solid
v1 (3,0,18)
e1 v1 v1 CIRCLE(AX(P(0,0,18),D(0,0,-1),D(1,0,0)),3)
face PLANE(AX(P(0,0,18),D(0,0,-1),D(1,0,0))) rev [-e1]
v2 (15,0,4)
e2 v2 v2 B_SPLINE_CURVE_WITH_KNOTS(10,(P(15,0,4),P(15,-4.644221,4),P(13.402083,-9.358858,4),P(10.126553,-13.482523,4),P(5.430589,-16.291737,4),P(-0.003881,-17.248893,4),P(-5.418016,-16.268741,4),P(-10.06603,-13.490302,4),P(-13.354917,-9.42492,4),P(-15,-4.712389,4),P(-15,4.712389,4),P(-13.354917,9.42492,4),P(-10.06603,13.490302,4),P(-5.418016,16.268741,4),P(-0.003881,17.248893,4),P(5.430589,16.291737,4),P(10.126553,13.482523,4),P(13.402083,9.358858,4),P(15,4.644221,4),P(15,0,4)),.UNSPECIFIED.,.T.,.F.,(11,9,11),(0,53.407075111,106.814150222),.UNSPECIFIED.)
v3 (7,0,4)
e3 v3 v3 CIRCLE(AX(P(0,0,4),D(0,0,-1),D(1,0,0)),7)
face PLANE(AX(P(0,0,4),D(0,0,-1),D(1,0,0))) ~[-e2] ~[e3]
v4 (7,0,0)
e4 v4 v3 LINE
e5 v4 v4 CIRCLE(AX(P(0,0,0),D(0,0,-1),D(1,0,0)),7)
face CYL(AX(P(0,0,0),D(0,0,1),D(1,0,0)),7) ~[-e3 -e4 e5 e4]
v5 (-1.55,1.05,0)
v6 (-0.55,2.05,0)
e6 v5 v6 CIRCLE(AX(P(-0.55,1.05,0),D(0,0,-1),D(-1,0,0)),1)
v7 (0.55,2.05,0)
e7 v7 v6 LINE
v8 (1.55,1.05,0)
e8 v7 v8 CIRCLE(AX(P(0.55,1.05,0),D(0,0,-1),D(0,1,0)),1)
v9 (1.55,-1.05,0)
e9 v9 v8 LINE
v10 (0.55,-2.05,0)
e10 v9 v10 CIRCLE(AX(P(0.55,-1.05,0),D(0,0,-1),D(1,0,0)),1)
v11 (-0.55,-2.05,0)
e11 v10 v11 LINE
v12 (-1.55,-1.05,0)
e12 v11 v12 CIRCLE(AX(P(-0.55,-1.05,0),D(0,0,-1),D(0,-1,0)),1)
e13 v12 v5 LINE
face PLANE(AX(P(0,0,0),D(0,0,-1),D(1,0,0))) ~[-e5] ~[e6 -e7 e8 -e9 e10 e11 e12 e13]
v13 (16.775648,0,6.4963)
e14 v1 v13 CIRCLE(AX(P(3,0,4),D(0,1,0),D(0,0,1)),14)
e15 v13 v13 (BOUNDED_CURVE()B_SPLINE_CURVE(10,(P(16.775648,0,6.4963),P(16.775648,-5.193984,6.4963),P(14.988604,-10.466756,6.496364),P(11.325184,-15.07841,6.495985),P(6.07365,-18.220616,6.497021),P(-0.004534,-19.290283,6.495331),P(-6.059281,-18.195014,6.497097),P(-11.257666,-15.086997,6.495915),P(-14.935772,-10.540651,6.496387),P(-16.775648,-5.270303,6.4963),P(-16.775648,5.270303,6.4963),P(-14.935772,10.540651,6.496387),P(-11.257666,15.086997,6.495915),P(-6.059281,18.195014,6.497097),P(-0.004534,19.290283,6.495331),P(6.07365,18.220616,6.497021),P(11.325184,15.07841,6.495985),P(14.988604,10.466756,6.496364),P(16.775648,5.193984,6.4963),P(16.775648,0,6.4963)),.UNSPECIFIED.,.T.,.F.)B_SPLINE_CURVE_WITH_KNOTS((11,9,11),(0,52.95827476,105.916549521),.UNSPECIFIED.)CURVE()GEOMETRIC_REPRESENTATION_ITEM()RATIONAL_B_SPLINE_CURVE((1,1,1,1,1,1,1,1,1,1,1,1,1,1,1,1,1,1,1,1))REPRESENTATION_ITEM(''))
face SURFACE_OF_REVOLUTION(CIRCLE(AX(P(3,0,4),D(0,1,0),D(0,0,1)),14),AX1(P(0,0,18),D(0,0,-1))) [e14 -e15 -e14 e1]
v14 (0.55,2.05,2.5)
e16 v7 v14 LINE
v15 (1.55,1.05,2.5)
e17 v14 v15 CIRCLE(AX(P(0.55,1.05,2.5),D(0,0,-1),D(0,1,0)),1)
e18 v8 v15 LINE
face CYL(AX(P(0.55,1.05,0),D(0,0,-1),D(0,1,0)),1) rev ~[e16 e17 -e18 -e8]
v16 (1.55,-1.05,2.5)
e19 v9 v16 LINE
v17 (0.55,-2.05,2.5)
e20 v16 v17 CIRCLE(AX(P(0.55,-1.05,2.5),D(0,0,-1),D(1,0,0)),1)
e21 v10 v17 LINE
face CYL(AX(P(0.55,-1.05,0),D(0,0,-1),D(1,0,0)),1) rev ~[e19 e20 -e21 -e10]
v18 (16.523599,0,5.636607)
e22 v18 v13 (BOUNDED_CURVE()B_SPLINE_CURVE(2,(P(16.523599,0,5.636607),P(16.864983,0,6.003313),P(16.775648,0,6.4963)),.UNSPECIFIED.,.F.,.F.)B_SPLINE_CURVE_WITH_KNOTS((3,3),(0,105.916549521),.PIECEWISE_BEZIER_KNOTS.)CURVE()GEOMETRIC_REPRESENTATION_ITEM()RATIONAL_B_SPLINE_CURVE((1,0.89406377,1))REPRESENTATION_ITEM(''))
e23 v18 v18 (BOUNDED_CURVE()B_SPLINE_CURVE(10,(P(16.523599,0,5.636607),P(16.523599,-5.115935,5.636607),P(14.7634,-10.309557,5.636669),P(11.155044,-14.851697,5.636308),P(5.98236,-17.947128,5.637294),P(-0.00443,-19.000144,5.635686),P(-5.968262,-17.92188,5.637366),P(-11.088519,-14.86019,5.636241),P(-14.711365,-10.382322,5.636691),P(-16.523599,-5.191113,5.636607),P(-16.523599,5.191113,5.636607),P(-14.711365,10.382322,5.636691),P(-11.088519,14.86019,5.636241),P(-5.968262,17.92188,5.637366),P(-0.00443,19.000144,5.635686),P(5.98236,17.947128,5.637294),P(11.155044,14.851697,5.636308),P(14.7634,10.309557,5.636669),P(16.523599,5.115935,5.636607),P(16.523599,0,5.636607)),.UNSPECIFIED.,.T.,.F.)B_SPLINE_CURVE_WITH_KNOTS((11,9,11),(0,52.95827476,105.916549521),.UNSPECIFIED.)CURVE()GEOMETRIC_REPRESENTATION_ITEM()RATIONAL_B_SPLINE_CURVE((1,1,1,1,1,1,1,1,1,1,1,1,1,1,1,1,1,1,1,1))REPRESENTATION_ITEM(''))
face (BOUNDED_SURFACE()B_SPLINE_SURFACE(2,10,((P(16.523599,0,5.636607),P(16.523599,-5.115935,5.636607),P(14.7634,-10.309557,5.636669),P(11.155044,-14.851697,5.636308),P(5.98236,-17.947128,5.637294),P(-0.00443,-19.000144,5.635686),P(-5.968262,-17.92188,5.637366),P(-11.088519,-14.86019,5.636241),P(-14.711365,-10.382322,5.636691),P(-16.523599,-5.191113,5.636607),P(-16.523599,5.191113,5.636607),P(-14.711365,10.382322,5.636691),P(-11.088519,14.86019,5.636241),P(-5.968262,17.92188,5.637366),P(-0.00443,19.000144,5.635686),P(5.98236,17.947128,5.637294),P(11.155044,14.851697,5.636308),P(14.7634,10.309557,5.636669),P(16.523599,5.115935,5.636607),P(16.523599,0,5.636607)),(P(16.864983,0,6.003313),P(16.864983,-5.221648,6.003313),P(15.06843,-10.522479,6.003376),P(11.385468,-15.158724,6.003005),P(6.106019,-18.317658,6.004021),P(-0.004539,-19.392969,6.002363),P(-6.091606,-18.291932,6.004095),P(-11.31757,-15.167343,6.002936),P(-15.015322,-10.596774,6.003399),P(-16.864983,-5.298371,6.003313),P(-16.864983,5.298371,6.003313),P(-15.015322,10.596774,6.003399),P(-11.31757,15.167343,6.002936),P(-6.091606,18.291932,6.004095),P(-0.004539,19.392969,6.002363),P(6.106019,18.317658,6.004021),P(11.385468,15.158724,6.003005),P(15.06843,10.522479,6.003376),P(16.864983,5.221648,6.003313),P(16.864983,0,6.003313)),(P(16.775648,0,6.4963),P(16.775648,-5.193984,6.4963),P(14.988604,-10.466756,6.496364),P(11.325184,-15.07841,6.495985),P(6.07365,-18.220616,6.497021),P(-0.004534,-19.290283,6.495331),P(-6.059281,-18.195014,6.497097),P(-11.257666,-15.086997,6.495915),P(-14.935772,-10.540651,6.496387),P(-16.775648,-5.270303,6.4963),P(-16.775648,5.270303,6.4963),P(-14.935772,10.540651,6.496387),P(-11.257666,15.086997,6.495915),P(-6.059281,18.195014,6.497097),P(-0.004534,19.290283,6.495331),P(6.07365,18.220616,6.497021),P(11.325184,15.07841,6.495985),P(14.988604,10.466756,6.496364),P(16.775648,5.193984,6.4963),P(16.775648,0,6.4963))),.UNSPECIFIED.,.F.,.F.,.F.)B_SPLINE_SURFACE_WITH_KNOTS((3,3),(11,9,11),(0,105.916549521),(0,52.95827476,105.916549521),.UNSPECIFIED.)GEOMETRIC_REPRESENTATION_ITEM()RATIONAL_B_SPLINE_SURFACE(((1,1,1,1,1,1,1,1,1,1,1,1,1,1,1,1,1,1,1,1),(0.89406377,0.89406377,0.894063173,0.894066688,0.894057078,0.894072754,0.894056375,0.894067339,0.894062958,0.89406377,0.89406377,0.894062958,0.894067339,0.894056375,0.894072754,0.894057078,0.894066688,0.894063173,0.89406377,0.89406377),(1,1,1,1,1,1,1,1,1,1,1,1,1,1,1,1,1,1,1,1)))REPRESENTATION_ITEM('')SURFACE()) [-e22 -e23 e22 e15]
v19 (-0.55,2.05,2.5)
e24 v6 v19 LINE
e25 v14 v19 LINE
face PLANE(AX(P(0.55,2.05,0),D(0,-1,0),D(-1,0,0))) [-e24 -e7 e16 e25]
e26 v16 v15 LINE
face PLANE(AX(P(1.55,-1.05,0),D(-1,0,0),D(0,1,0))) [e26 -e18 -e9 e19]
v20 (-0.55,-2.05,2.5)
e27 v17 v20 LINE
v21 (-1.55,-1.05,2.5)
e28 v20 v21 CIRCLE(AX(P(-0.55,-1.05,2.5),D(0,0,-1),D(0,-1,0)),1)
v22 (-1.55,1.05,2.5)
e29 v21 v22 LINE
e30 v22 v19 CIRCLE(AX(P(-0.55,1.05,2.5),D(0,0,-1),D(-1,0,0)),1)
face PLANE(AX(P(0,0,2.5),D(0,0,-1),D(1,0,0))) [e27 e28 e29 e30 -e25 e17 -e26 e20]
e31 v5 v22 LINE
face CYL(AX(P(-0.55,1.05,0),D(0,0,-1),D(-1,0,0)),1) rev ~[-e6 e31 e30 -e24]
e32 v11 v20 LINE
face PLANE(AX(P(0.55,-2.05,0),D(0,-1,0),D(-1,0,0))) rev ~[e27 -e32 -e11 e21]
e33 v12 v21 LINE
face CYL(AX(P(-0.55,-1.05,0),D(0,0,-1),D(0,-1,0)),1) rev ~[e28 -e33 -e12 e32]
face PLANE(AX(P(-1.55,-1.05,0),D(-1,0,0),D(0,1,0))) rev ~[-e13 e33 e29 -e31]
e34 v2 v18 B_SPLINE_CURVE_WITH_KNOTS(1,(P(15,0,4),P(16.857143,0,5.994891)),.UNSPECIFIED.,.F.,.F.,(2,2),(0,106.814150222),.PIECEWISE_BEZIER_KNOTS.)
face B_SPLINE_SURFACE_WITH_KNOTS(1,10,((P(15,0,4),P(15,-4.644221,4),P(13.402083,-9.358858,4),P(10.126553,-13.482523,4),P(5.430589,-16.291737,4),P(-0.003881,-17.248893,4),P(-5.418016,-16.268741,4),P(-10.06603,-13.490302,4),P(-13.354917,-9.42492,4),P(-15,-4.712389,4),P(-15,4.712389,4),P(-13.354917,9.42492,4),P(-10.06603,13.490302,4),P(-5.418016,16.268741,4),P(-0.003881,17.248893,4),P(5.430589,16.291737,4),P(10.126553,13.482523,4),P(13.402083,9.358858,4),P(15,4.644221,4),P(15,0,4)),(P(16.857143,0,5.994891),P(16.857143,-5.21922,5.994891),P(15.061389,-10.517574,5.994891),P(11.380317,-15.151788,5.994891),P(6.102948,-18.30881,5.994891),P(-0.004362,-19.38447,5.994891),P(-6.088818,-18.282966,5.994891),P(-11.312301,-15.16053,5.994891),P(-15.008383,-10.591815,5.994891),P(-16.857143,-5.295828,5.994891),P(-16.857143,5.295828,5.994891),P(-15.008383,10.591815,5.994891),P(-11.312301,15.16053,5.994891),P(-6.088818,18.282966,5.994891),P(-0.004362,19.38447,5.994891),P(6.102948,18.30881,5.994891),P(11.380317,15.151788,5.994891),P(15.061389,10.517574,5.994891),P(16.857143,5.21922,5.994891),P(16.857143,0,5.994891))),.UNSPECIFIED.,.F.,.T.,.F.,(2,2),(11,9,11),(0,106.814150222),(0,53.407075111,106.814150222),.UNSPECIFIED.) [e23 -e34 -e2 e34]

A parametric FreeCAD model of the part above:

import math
import FreeCAD as App
import Part
import Sketcher


def edges_at(feature, points):
    """Names of the edges that pass closest to the given points."""
    edges = feature.Shape.Edges
    near = lambda p: min(range(len(edges)), key=lambda i: edges[i].distToShape(Part.Vertex(*p))[0])
    return sorted({f"Edge{near(p) + 1}" for p in points})

doc = App.newDocument("Part")
params = doc.addObject("Spreadsheet::Sheet", "Params")
for row, (alias, value) in enumerate([
    ("sketch1_width", "7 mm"),
    ("sketch1_width2", "3 mm"),
    ("sketch1_width3", "10 mm"),
    ("sketch1_height", "18 mm"),
    ("sketch1_height2", "4 mm"),
    ("revolution_angle", "360 deg"),
    ("sketch2_radius", "1 mm"),
    ("sketch2_width", "1.1 mm"),
    ("pocket1_length", "2.5 mm"),
    ("chamfer_size", "2 mm"),
    ("fillet_radius", "1 mm"),
], start=1):
    params.set(f"A{row}", alias)
    params.set(f"B{row}", "=" + value)
    params.setAlias(f"B{row}", alias)

body = doc.addObject("PartDesign::Body", "Body")

sketch1 = body.newObject("Sketcher::SketchObject", "Sketch")
sketch1.AttachmentSupport = (doc.getObject("XZ_Plane"), [""])
sketch1.MapMode = "FlatFace"
sketch1.addGeometry([
    Part.LineSegment(App.Vector(7, 0, 0), App.Vector(0, 0, 0)),
    Part.LineSegment(App.Vector(0, 0, 0), App.Vector(0, 18, 0)),
    Part.LineSegment(App.Vector(0, 18, 0), App.Vector(3, 18, 0)),
    Part.ArcOfCircle(Part.Circle(App.Vector(3, 4, 0), App.Vector(0, 0, 1), 14), math.radians(0), math.radians(90)),
    Part.LineSegment(App.Vector(17, 4, 0), App.Vector(7, 4, 0)),
    Part.LineSegment(App.Vector(7, 4, 0), App.Vector(7, 0, 0)),
], False)
sketch1.addConstraint([
    Sketcher.Constraint("Coincident", 0, 2, 1, 1),
    Sketcher.Constraint("Coincident", 1, 2, 2, 1),
    Sketcher.Constraint("Tangent", 2, 2, 3, 2),
    Sketcher.Constraint("Coincident", 3, 1, 4, 1),
    Sketcher.Constraint("Coincident", 4, 2, 5, 1),
    Sketcher.Constraint("Coincident", 5, 2, 0, 1),
    Sketcher.Constraint("Horizontal", 0),
    Sketcher.Constraint("Vertical", 1),
    Sketcher.Constraint("Horizontal", 2),
    Sketcher.Constraint("Horizontal", 4),
    Sketcher.Constraint("Vertical", 5),
    Sketcher.Constraint("Coincident", 0, 2, -1, 1),
    Sketcher.Constraint("DistanceX", 0, 2, 0, 1, 7.0),
    Sketcher.Constraint("DistanceX", 2, 1, 2, 2, 3.0),
    Sketcher.Constraint("DistanceX", 4, 2, 4, 1, 10.0),
    Sketcher.Constraint("DistanceY", 1, 1, 1, 2, 18.0),
    Sketcher.Constraint("DistanceY", 5, 2, 5, 1, 4.0),
])
sketch1.setExpression("Constraints[12]", "Params.sketch1_width")
sketch1.setExpression("Constraints[13]", "Params.sketch1_width2")
sketch1.setExpression("Constraints[14]", "Params.sketch1_width3")
sketch1.setExpression("Constraints[15]", "Params.sketch1_height")
sketch1.setExpression("Constraints[16]", "Params.sketch1_height2")
revolution = body.newObject("PartDesign::Revolution", "Revolution")
revolution.Profile = sketch1
revolution.ReferenceAxis = (sketch1, ["V_Axis"])
revolution.setExpression("Angle", "Params.revolution_angle")

sketch2 = body.newObject("Sketcher::SketchObject", "Sketch001")
sketch2.AttachmentSupport = (doc.getObject("XY_Plane"), [""])
sketch2.MapMode = "FlatFace"
sketch2.addGeometry([
    Part.LineSegment(App.Vector(1.6, 1.1, 0), App.Vector(1.6, -1.1, 0)),
    Part.ArcOfCircle(Part.Circle(App.Vector(0.6, -1.1, 0), App.Vector(0, 0, 1), 1), math.radians(-90), math.radians(0)),
    Part.LineSegment(App.Vector(0.6, -2, 0), App.Vector(-0.6, -2, 0)),
    Part.ArcOfCircle(Part.Circle(App.Vector(-0.6, -1.1, 0), App.Vector(0, 0, 1), 1), math.radians(180), math.radians(270)),
    Part.LineSegment(App.Vector(-1.6, -1.1, 0), App.Vector(-1.6, 1.1, 0)),
    Part.ArcOfCircle(Part.Circle(App.Vector(-0.6, 1.1, 0), App.Vector(0, 0, 1), 1), math.radians(90), math.radians(180)),
    Part.LineSegment(App.Vector(-0.6, 2, 0), App.Vector(0.6, 2, 0)),
    Part.ArcOfCircle(Part.Circle(App.Vector(0.6, 1.1, 0), App.Vector(0, 0, 1), 1), math.radians(0), math.radians(90)),
], False)
sketch2.addConstraint([
    Sketcher.Constraint("Tangent", 0, 2, 1, 2),
    Sketcher.Constraint("Tangent", 1, 1, 2, 1),
    Sketcher.Constraint("Tangent", 2, 2, 3, 2),
    Sketcher.Constraint("Tangent", 3, 1, 4, 1),
    Sketcher.Constraint("Tangent", 4, 2, 5, 2),
    Sketcher.Constraint("Tangent", 5, 1, 6, 1),
    Sketcher.Constraint("Tangent", 6, 2, 7, 2),
    Sketcher.Constraint("Tangent", 7, 1, 0, 1),
    Sketcher.Constraint("Vertical", 0),
    Sketcher.Constraint("Horizontal", 2),
    Sketcher.Constraint("Vertical", 4),
    Sketcher.Constraint("Horizontal", 6),
    Sketcher.Constraint("Equal", 1, 3),
    Sketcher.Constraint("Equal", 3, 5),
    Sketcher.Constraint("Equal", 5, 7),
    Sketcher.Constraint("Symmetric", 1, 3, 5, 3, -1, 1),
    Sketcher.Constraint("Radius", 1, 1.0),
    Sketcher.Constraint("DistanceY", 1, 1, 7, 3, 3.1),
    Sketcher.Constraint("DistanceX", 2, 2, 2, 1, 1.1),
])
sketch2.setExpression("Constraints[16]", "Params.sketch2_radius")
sketch2.setExpression("Constraints[18]", "Params.sketch2_width")
pocket1 = body.newObject("PartDesign::Pocket", "Pocket")
pocket1.Profile = sketch2
pocket1.setExpression("Length", "Params.pocket1_length")
pocket1.Reversed = True
doc.recompute()

chamfer = body.newObject("PartDesign::Chamfer", "Chamfer")
chamfer.Base = (pocket1, edges_at(pocket1, [(-15.85, -6.147, 4)]))
chamfer.setExpression("Size", "Params.chamfer_size")
doc.recompute()

fillet = body.newObject("PartDesign::Fillet", "Fillet")
fillet.Base = (chamfer, edges_at(chamfer, [(15.716, -6.096, 5.995)]))
fillet.setExpression("Radius", "Params.fillet_radius")

doc.recompute()
